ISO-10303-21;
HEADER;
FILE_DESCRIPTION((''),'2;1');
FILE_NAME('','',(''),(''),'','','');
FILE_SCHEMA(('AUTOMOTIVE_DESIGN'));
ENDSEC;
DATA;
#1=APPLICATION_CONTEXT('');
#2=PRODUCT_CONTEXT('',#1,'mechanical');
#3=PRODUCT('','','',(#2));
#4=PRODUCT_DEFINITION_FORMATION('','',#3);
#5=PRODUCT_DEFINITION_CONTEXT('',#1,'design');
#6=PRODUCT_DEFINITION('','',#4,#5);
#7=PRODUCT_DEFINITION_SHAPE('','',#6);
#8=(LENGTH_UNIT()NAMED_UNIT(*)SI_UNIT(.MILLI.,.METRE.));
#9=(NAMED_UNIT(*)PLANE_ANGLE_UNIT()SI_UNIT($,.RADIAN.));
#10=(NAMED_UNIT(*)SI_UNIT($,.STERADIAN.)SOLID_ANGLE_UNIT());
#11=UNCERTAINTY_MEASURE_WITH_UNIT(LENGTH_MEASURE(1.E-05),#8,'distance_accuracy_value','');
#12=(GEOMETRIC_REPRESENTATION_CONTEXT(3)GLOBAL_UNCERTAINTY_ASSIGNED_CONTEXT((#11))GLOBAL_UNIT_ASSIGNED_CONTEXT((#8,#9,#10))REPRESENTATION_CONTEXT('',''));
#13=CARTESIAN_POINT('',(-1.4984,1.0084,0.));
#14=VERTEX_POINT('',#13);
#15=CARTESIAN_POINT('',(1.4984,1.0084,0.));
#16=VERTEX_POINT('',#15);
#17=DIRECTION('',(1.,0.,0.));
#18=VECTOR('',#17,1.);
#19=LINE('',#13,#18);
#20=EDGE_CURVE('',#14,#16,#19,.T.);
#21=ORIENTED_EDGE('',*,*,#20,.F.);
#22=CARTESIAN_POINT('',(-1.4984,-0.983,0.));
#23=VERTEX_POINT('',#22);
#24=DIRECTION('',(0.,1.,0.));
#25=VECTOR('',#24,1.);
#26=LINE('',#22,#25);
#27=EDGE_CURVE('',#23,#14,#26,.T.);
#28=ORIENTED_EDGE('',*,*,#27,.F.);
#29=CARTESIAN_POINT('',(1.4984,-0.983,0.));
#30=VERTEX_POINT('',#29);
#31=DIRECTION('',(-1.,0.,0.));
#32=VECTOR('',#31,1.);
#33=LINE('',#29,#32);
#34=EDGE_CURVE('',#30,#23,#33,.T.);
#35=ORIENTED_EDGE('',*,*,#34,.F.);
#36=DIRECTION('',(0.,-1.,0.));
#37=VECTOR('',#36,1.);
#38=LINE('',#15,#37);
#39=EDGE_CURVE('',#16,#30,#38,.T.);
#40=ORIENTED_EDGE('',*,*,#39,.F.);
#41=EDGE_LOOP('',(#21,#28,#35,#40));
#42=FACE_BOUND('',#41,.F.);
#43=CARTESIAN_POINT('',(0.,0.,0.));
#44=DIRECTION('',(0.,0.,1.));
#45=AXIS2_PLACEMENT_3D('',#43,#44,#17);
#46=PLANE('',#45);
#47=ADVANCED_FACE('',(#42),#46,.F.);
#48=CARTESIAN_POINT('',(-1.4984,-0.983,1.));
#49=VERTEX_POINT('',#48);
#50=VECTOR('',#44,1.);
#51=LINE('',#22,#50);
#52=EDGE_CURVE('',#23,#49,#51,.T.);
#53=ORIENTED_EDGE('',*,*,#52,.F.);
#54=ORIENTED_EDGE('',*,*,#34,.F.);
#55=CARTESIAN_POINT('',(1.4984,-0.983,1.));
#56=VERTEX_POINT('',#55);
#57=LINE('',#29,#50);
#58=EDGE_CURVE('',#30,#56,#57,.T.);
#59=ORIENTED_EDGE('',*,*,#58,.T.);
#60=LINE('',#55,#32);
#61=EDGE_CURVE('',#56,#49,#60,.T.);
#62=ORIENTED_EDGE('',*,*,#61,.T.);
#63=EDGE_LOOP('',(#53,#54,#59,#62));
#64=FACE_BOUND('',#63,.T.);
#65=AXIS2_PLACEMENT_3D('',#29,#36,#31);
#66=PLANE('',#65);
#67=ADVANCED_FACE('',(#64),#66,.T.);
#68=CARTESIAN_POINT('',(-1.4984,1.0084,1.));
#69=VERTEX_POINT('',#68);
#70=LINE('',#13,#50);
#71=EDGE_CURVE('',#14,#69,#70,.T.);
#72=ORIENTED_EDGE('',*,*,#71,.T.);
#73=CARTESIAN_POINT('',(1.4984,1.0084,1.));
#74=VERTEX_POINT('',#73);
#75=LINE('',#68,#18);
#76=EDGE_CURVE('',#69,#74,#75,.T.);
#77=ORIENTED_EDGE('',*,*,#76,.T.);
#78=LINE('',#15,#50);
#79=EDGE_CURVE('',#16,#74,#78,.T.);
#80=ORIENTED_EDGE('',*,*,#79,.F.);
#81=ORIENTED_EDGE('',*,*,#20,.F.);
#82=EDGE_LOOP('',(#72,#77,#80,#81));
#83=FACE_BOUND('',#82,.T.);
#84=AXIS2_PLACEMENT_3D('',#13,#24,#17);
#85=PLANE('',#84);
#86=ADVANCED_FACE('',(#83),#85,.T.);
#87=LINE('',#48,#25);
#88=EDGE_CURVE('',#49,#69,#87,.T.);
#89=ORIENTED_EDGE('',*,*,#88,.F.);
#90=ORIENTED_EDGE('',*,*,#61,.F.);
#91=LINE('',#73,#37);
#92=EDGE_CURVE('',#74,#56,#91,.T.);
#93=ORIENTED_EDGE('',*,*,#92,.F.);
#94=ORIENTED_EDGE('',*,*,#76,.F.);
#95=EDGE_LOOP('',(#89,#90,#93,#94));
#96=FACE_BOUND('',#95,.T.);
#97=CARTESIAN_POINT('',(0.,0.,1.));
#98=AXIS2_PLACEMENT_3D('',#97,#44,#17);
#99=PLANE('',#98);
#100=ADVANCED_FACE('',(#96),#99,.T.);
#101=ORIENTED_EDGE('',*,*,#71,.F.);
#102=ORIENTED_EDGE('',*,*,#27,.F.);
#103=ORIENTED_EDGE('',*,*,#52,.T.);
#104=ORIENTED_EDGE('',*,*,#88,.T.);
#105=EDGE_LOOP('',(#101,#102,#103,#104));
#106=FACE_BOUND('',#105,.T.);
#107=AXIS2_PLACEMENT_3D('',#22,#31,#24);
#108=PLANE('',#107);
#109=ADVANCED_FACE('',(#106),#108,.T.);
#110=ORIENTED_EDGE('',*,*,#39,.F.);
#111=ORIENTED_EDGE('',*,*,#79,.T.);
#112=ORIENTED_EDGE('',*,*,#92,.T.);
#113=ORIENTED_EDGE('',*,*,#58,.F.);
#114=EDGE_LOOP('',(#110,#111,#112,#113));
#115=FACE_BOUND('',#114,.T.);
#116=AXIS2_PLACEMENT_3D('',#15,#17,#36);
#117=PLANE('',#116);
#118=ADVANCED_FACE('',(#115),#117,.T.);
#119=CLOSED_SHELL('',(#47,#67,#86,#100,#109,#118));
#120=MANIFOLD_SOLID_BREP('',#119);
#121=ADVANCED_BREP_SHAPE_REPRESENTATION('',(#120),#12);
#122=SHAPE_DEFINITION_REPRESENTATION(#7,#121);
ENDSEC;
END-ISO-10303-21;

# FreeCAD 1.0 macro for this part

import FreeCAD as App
import Part
import Sketcher


def add_polygon(sketch, points):
    """Adds a closed chain of lines whose ends are joined by coincident constraints."""
    first, n = sketch.GeometryCount, len(points)
    for a, b in zip(points, points[1:] + points[:1]):
        sketch.addGeometry(Part.LineSegment(App.Vector(*a, 0), App.Vector(*b, 0)), False)
    for i in range(n):
        sketch.addConstraint(Sketcher.Constraint("Coincident", first + i, 2, first + (i + 1) % n, 1))

doc = App.newDocument("Part")
params = doc.addObject("Spreadsheet::Sheet", "Params")
for row, (alias, value) in enumerate([
    ("pad1_length", "1 mm"),
], start=1):
    params.set(f"A{row}", alias)
    params.set(f"B{row}", "=" + value)
    params.setAlias(f"B{row}", alias)

body = doc.addObject("PartDesign::Body", "Body")

sketch1 = body.newObject("Sketcher::SketchObject", "Sketch")
sketch1.AttachmentSupport = (doc.getObject("XY_Plane"), [""])
sketch1.MapMode = "FlatFace"
add_polygon(sketch1, [(1.5, 1), (-1.5, 1), (-1.5, -1), (1.5, -1)])
sketch1.addConstraint(Sketcher.Constraint("Horizontal", 0))
sketch1.addConstraint(Sketcher.Constraint("Vertical", 1))
sketch1.addConstraint(Sketcher.Constraint("Horizontal", 2))
sketch1.addConstraint(Sketcher.Constraint("Vertical", 3))
sketch1.addConstraint(Sketcher.Constraint("DistanceX", 0, 2, 0, 1, 2.9968))
sketch1.addConstraint(Sketcher.Constraint("DistanceY", 1, 2, 1, 1, 1.9914))
sketch1.addConstraint(Sketcher.Constraint("DistanceY", 1, 2, -1, 1, 0.983))
sketch1.addConstraint(Sketcher.Constraint("DistanceX", 0, 2, -1, 1, 1.4984))
pad1 = body.newObject("PartDesign::Pad", "Pad")
pad1.Profile = sketch1
pad1.setExpression("Length", "Params.pad1_length")

doc.recompute()
